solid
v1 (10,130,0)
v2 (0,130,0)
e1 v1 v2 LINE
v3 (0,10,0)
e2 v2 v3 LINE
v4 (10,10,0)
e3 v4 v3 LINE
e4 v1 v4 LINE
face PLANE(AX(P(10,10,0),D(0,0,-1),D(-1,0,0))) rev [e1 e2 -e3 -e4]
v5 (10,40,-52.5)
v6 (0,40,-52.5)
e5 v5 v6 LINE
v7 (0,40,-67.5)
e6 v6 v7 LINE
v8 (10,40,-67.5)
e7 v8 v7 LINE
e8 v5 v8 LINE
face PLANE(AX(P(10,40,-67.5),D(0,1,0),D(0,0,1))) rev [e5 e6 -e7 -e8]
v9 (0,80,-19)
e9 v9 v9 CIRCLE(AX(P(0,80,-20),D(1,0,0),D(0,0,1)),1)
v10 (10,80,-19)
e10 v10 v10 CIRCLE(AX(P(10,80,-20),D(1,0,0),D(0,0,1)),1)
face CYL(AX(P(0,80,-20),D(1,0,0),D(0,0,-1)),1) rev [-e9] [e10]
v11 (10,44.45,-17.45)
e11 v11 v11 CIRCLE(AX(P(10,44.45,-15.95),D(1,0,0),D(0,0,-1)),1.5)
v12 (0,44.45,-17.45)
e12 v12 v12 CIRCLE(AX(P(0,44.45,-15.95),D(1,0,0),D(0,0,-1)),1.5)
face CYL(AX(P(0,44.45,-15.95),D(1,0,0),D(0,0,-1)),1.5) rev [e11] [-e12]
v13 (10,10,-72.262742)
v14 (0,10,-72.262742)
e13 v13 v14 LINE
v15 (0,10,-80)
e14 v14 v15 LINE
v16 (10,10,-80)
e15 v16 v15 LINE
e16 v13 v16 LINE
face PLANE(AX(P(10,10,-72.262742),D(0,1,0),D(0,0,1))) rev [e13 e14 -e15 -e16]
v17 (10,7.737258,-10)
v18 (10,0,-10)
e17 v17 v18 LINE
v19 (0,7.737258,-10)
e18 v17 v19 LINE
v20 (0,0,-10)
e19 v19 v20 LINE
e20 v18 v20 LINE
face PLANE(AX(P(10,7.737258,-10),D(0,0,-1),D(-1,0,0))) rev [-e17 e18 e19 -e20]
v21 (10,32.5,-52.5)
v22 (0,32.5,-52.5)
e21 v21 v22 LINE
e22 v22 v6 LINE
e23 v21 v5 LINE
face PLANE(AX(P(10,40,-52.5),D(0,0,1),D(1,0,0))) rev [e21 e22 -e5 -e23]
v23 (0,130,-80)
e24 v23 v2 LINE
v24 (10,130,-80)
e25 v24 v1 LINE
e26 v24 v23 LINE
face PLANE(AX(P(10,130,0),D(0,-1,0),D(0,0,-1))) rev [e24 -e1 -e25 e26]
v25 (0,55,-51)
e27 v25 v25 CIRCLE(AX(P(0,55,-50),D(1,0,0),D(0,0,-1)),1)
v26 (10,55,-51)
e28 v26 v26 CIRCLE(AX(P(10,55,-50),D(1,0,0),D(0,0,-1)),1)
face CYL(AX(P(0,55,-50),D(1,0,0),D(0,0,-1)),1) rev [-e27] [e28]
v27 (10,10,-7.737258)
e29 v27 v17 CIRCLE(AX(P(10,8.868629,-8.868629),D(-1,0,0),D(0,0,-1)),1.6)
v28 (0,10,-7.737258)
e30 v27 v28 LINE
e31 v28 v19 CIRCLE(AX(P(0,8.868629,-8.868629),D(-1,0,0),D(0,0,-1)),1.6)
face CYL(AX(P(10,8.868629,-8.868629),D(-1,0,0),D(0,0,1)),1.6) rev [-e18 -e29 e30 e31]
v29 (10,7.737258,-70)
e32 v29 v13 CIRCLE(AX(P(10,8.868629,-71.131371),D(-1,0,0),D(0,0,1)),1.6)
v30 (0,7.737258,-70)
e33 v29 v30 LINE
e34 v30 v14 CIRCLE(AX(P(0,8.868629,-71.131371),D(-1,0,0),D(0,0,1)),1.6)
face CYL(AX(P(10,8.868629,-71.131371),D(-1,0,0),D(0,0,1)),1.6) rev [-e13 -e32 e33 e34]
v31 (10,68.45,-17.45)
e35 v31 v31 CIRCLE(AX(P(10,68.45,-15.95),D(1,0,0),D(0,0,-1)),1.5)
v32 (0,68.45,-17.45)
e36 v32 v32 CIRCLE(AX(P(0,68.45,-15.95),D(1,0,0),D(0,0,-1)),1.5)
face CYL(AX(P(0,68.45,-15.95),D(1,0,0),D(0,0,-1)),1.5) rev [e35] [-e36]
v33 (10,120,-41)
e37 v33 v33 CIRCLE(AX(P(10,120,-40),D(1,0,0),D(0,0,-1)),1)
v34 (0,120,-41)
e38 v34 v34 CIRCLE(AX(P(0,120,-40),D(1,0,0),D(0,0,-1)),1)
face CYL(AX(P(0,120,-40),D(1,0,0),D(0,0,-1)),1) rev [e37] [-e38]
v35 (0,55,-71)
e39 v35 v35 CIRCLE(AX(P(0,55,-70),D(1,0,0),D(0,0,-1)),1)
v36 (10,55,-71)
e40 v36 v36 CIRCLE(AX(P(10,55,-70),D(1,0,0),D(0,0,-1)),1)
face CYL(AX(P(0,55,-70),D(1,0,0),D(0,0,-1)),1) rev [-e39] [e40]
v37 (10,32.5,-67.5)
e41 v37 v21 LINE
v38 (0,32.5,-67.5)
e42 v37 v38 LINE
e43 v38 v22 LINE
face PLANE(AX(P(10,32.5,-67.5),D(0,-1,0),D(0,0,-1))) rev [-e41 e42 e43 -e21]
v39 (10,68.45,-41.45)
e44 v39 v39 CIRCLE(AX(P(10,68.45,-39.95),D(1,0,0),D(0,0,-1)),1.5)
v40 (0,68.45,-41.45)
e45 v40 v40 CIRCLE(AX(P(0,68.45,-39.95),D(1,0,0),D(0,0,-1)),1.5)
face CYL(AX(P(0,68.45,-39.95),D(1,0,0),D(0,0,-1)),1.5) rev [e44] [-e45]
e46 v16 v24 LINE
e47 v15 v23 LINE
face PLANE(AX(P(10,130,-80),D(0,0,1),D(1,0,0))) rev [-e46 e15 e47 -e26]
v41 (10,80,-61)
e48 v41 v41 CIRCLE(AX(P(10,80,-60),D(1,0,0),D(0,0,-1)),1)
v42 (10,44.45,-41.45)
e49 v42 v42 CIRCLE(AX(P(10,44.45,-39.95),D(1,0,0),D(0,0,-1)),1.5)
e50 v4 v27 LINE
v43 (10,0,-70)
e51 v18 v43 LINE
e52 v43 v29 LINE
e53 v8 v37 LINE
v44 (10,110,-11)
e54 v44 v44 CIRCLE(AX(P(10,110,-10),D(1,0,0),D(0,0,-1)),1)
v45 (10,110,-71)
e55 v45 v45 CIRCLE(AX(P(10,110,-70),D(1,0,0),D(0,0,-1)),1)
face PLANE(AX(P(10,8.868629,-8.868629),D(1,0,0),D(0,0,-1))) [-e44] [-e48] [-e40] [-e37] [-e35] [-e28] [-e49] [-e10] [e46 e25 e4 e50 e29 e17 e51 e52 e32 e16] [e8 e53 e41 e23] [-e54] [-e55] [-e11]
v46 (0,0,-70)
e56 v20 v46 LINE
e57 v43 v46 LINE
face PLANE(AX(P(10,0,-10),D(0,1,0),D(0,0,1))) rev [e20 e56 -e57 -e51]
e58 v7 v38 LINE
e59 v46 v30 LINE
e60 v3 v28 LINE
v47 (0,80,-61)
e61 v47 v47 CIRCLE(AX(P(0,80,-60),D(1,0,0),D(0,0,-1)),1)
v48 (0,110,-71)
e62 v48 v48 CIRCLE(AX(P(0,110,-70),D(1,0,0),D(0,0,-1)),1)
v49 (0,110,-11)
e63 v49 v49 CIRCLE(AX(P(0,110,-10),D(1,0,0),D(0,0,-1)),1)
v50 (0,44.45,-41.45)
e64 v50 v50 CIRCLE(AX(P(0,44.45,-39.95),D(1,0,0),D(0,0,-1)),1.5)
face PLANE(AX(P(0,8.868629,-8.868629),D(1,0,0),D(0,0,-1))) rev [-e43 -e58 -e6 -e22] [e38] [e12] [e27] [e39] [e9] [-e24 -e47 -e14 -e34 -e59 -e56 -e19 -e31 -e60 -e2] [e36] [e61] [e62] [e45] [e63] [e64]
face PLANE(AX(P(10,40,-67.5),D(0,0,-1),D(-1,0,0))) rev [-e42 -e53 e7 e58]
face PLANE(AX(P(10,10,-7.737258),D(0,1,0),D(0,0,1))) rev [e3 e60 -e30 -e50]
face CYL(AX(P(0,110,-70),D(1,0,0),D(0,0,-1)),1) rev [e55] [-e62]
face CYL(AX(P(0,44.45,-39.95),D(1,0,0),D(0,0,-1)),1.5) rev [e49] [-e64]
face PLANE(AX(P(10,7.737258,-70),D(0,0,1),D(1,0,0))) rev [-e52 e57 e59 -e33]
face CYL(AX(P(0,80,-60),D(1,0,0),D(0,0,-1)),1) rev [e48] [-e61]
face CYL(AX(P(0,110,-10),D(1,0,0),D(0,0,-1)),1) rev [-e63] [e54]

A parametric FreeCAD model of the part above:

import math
import FreeCAD as App
import Part
import Sketcher

V = App.Vector


def add_polygon(sketch, points):
    """Adds a closed chain of lines whose ends are joined by coincident constraints."""
    first, n = sketch.GeometryCount, len(points)
    for a, b in zip(points, points[1:] + points[:1]):
        sketch.addGeometry(Part.LineSegment(App.Vector(*a, 0), App.Vector(*b, 0)), False)
    for i in range(n):
        sketch.addConstraint(Sketcher.Constraint("Coincident", first + i, 2, first + (i + 1) % n, 1))

doc = App.newDocument("Part")
body = doc.addObject("PartDesign::Body", "Body")

sketch1 = body.newObject("Sketcher::SketchObject", "Sketch")
sketch1.AttachmentSupport = (doc.getObject("YZ_Plane"), [""])
sketch1.MapMode = "FlatFace"
sketch1.addGeometry(Part.LineSegment(V(7.7, -10, 0), V(0, -10, 0)), False)
sketch1.addGeometry(Part.LineSegment(V(0, -10, 0), V(0, -70, 0)), False)
sketch1.addGeometry(Part.LineSegment(V(0, -70, 0), V(7.7, -70, 0)), False)
sketch1.addGeometry(Part.ArcOfCircle(Part.Circle(V(8.9, -71.1, 0), V(0, 0, 1), 1.6), math.radians(-45), math.radians(135)), False)
sketch1.addGeometry(Part.LineSegment(V(10, -72.3, 0), V(10, -80, 0)), False)
sketch1.addGeometry(Part.LineSegment(V(10, -80, 0), V(130, -80, 0)), False)
sketch1.addGeometry(Part.LineSegment(V(130, -80, 0), V(130, 0, 0)), False)
sketch1.addGeometry(Part.LineSegment(V(130, 0, 0), V(10, 0, 0)), False)
sketch1.addGeometry(Part.LineSegment(V(10, 0, 0), V(10, -7.7, 0)), False)
sketch1.addGeometry(Part.ArcOfCircle(Part.Circle(V(8.9, -8.9, 0), V(0, 0, 1), 1.6), math.radians(-135), math.radians(45)), False)
sketch1.addConstraint(Sketcher.Constraint("Coincident", 0, 2, 1, 1))
sketch1.addConstraint(Sketcher.Constraint("Coincident", 1, 2, 2, 1))
sketch1.addConstraint(Sketcher.Constraint("Coincident", 2, 2, 3, 2))
sketch1.addConstraint(Sketcher.Constraint("Coincident", 3, 1, 4, 1))
sketch1.addConstraint(Sketcher.Constraint("Coincident", 4, 2, 5, 1))
sketch1.addConstraint(Sketcher.Constraint("Coincident", 5, 2, 6, 1))
sketch1.addConstraint(Sketcher.Constraint("Coincident", 6, 2, 7, 1))
sketch1.addConstraint(Sketcher.Constraint("Coincident", 7, 2, 8, 1))
sketch1.addConstraint(Sketcher.Constraint("Coincident", 8, 2, 9, 2))
sketch1.addConstraint(Sketcher.Constraint("Coincident", 9, 1, 0, 1))
sketch1.addConstraint(Sketcher.Constraint("Horizontal", 0))
sketch1.addConstraint(Sketcher.Constraint("Vertical", 1))
sketch1.addConstraint(Sketcher.Constraint("Horizontal", 2))
sketch1.addConstraint(Sketcher.Constraint("Vertical", 4))
sketch1.addConstraint(Sketcher.Constraint("Horizontal", 5))
sketch1.addConstraint(Sketcher.Constraint("Vertical", 6))
sketch1.addConstraint(Sketcher.Constraint("Horizontal", 7))
sketch1.addConstraint(Sketcher.Constraint("Vertical", 8))
sketch1.addConstraint(Sketcher.Constraint("Equal", 3, 9))
sketch1.addConstraint(Sketcher.Constraint("PointOnObject", 0, 2, -2))
sketch1.addConstraint(Sketcher.Constraint("PointOnObject", 6, 2, -1))
sketch1.addConstraint(Sketcher.Constraint("Vertical", 3, 3, 9, 3))
sketch1.addConstraint(Sketcher.Constraint("Vertical", 4, 2, 7, 2))
sketch1.addConstraint(Sketcher.Constraint("Vertical", 2, 2, 9, 1))
sketch1.addConstraint(Sketcher.Constraint("Equal", 2, 4))
sketch1.addConstraint(Sketcher.Constraint("Equal", 4, 8))
sketch1.addConstraint(Sketcher.Constraint("Radius", 3, 1.6))
sketch1.addConstraint(Sketcher.Constraint("DistanceX", 5, 1, 5, 2, 120.0))
sketch1.addConstraint(Sketcher.Constraint("DistanceY", 1, 2, 1, 1, 60.0))
sketch1.addConstraint(Sketcher.Constraint("DistanceY", 6, 1, 6, 2, 80.0))
sketch1.addConstraint(Sketcher.Constraint("DistanceX", -1, 1, 3, 1, 10.0))
sketch1.addConstraint(Sketcher.Constraint("DistanceX", -1, 1, 3, 3, 8.868629))
pad1 = body.newObject("PartDesign::Pad", "Pad")
pad1.Profile = sketch1
pad1.Length = 10

sketch2 = body.newObject("Sketcher::SketchObject", "Sketch001")
sketch2.AttachmentSupport = (doc.getObject("YZ_Plane"), [""])
sketch2.MapMode = "FlatFace"
sketch2.AttachmentOffset = App.Placement(V(0, 0, 10), App.Rotation())
sketch2.addGeometry(Part.Circle(V(80, -60, 0), V(0, 0, 1), 1), False)
sketch2.addGeometry(Part.Circle(V(110, -10, 0), V(0, 0, 1), 1), False)
sketch2.addGeometry(Part.Circle(V(80, -20, 0), V(0, 0, 1), 1), False)
sketch2.addGeometry(Part.Circle(V(110, -70, 0), V(0, 0, 1), 1), False)
sketch2.addGeometry(Part.Circle(V(68.5, -15.9, 0), V(0, 0, 1), 1.5), False)
sketch2.addGeometry(Part.Circle(V(44.5, -15.9, 0), V(0, 0, 1), 1.5), False)
sketch2.addGeometry(Part.Circle(V(44.5, -40, 0), V(0, 0, 1), 1.5), False)
sketch2.addGeometry(Part.Circle(V(68.5, -40, 0), V(0, 0, 1), 1.5), False)
sketch2.addGeometry(Part.Circle(V(120, -40, 0), V(0, 0, 1), 1), False)
sketch2.addGeometry(Part.Circle(V(55, -70, 0), V(0, 0, 1), 1), False)
sketch2.addGeometry(Part.Circle(V(55, -50, 0), V(0, 0, 1), 1), False)
sketch2.addConstraint(Sketcher.Constraint("Equal", 0, 1))
sketch2.addConstraint(Sketcher.Constraint("Equal", 1, 2))
sketch2.addConstraint(Sketcher.Constraint("Equal", 2, 3))
sketch2.addConstraint(Sketcher.Constraint("Equal", 4, 5))
sketch2.addConstraint(Sketcher.Constraint("Equal", 5, 6))
sketch2.addConstraint(Sketcher.Constraint("Equal", 6, 7))
sketch2.addConstraint(Sketcher.Constraint("Equal", 3, 8))
sketch2.addConstraint(Sketcher.Constraint("Equal", 8, 9))
sketch2.addConstraint(Sketcher.Constraint("Equal", 9, 10))
sketch2.addConstraint(Sketcher.Constraint("Horizontal", 4, 3, 5, 3))
sketch2.addConstraint(Sketcher.Constraint("Horizontal", 6, 3, 7, 3))
sketch2.addConstraint(Sketcher.Constraint("Horizontal", 3, 3, 9, 3))
sketch2.addConstraint(Sketcher.Constraint("Vertical", 0, 3, 2, 3))
sketch2.addConstraint(Sketcher.Constraint("Vertical", 1, 3, 3, 3))
sketch2.addConstraint(Sketcher.Constraint("Vertical", 5, 3, 6, 3))
sketch2.addConstraint(Sketcher.Constraint("Vertical", 4, 3, 7, 3))
sketch2.addConstraint(Sketcher.Constraint("Vertical", 9, 3, 10, 3))
sketch2.addConstraint(Sketcher.Constraint("Diameter", 0, 2.0))
sketch2.addConstraint(Sketcher.Constraint("Diameter", 4, 3.0))
sketch2.addConstraint(Sketcher.Constraint("DistanceX", -1, 1, 0, 3, 80.0))
sketch2.addConstraint(Sketcher.Constraint("DistanceY", 0, 3, -1, 1, 60.0))
sketch2.addConstraint(Sketcher.Constraint("DistanceX", -1, 1, 1, 3, 110.0))
sketch2.addConstraint(Sketcher.Constraint("DistanceY", 1, 3, -1, 1, 10.0))
sketch2.addConstraint(Sketcher.Constraint("DistanceY", 2, 3, -1, 1, 20.0))
sketch2.addConstraint(Sketcher.Constraint("DistanceY", 3, 3, -1, 1, 70.0))
sketch2.addConstraint(Sketcher.Constraint("DistanceX", -1, 1, 8, 3, 120.0))
sketch2.addConstraint(Sketcher.Constraint("DistanceY", 8, 3, -1, 1, 40.0))
sketch2.addConstraint(Sketcher.Constraint("DistanceX", -1, 1, 9, 3, 55.0))
sketch2.addConstraint(Sketcher.Constraint("DistanceY", 10, 3, -1, 1, 50.0))
sketch2.addConstraint(Sketcher.Constraint("DistanceX", 5, 3, 4, 3, 24.0))
sketch2.addConstraint(Sketcher.Constraint("DistanceY", 6, 3, 5, 3, 24.0))
sketch2.addConstraint(Sketcher.Constraint("DistanceX", -1, 1, 4, 3, 68.45))
sketch2.addConstraint(Sketcher.Constraint("DistanceY", 4, 3, -1, 1, 15.95))
pocket1 = body.newObject("PartDesign::Pocket", "Pocket")
pocket1.Profile = sketch2
pocket1.Type = "ThroughAll"

sketch3 = body.newObject("Sketcher::SketchObject", "Sketch002")
sketch3.AttachmentSupport = (doc.getObject("YZ_Plane"), [""])
sketch3.MapMode = "FlatFace"
add_polygon(sketch3, [(40, -68), (32, -68), (32, -52), (40, -52)])
sketch3.addConstraint(Sketcher.Constraint("Horizontal", 0))
sketch3.addConstraint(Sketcher.Constraint("Vertical", 1))
sketch3.addConstraint(Sketcher.Constraint("Horizontal", 2))
sketch3.addConstraint(Sketcher.Constraint("Vertical", 3))
sketch3.addConstraint(Sketcher.Constraint("DistanceY", 1, 1, 1, 2, 15.0))
sketch3.addConstraint(Sketcher.Constraint("DistanceX", 0, 2, 0, 1, 7.5))
sketch3.addConstraint(Sketcher.Constraint("DistanceX", -1, 1, 2, 2, 40.0))
sketch3.addConstraint(Sketcher.Constraint("DistanceY", 0, 2, -1, 1, 67.5))
pocket2 = body.newObject("PartDesign::Pocket", "Pocket001")
pocket2.Profile = sketch3
pocket2.Type = "ThroughAll"
pocket2.Reversed = True

doc.recompute()
